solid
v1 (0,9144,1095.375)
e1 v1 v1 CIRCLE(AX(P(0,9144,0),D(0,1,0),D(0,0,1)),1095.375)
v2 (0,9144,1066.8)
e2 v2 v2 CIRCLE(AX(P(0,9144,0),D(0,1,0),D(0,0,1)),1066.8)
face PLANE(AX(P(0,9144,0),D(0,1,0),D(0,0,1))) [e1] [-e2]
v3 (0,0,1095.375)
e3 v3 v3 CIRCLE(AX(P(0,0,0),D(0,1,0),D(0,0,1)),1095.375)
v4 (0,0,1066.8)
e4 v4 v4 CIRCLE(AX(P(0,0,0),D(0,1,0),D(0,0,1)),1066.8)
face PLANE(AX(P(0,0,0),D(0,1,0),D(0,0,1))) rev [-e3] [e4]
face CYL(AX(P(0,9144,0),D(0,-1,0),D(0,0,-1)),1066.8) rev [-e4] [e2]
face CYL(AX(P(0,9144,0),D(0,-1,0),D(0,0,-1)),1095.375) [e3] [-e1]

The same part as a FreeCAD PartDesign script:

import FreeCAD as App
import Part
import Sketcher
Q = App.Units.Quantity

doc = App.newDocument("Part")
body = doc.addObject("PartDesign::Body", "Body")

# Sketch on XZ plane
sketch1 = body.newObject("Sketcher::SketchObject", "Sketch")
sketch1.AttachmentSupport = (doc.getObject("XZ_Plane"), [""])
sketch1.MapMode = "FlatFace"
sketch1.addGeometry([
    Part.Circle(App.Vector(0, 0, 0), App.Vector(0, 0, 1), 1095),
    Part.Circle(App.Vector(0, 0, 0), App.Vector(0, 0, 1), 1067),
], False)
sketch1.addConstraint([
    Sketcher.Constraint("Coincident", 0, 3, -1, 1),
    Sketcher.Constraint("Coincident", 1, 3, -1, 1),
    Sketcher.Constraint("Diameter", 1, Q("84 in")),
    Sketcher.Constraint("Diameter", 0, Q("86.25 in")),
])
pad1 = body.newObject("PartDesign::Pad", "Pad")
pad1.Profile = sketch1
pad1.Length = Q("360 in")
pad1.Reversed = True

doc.recompute()
